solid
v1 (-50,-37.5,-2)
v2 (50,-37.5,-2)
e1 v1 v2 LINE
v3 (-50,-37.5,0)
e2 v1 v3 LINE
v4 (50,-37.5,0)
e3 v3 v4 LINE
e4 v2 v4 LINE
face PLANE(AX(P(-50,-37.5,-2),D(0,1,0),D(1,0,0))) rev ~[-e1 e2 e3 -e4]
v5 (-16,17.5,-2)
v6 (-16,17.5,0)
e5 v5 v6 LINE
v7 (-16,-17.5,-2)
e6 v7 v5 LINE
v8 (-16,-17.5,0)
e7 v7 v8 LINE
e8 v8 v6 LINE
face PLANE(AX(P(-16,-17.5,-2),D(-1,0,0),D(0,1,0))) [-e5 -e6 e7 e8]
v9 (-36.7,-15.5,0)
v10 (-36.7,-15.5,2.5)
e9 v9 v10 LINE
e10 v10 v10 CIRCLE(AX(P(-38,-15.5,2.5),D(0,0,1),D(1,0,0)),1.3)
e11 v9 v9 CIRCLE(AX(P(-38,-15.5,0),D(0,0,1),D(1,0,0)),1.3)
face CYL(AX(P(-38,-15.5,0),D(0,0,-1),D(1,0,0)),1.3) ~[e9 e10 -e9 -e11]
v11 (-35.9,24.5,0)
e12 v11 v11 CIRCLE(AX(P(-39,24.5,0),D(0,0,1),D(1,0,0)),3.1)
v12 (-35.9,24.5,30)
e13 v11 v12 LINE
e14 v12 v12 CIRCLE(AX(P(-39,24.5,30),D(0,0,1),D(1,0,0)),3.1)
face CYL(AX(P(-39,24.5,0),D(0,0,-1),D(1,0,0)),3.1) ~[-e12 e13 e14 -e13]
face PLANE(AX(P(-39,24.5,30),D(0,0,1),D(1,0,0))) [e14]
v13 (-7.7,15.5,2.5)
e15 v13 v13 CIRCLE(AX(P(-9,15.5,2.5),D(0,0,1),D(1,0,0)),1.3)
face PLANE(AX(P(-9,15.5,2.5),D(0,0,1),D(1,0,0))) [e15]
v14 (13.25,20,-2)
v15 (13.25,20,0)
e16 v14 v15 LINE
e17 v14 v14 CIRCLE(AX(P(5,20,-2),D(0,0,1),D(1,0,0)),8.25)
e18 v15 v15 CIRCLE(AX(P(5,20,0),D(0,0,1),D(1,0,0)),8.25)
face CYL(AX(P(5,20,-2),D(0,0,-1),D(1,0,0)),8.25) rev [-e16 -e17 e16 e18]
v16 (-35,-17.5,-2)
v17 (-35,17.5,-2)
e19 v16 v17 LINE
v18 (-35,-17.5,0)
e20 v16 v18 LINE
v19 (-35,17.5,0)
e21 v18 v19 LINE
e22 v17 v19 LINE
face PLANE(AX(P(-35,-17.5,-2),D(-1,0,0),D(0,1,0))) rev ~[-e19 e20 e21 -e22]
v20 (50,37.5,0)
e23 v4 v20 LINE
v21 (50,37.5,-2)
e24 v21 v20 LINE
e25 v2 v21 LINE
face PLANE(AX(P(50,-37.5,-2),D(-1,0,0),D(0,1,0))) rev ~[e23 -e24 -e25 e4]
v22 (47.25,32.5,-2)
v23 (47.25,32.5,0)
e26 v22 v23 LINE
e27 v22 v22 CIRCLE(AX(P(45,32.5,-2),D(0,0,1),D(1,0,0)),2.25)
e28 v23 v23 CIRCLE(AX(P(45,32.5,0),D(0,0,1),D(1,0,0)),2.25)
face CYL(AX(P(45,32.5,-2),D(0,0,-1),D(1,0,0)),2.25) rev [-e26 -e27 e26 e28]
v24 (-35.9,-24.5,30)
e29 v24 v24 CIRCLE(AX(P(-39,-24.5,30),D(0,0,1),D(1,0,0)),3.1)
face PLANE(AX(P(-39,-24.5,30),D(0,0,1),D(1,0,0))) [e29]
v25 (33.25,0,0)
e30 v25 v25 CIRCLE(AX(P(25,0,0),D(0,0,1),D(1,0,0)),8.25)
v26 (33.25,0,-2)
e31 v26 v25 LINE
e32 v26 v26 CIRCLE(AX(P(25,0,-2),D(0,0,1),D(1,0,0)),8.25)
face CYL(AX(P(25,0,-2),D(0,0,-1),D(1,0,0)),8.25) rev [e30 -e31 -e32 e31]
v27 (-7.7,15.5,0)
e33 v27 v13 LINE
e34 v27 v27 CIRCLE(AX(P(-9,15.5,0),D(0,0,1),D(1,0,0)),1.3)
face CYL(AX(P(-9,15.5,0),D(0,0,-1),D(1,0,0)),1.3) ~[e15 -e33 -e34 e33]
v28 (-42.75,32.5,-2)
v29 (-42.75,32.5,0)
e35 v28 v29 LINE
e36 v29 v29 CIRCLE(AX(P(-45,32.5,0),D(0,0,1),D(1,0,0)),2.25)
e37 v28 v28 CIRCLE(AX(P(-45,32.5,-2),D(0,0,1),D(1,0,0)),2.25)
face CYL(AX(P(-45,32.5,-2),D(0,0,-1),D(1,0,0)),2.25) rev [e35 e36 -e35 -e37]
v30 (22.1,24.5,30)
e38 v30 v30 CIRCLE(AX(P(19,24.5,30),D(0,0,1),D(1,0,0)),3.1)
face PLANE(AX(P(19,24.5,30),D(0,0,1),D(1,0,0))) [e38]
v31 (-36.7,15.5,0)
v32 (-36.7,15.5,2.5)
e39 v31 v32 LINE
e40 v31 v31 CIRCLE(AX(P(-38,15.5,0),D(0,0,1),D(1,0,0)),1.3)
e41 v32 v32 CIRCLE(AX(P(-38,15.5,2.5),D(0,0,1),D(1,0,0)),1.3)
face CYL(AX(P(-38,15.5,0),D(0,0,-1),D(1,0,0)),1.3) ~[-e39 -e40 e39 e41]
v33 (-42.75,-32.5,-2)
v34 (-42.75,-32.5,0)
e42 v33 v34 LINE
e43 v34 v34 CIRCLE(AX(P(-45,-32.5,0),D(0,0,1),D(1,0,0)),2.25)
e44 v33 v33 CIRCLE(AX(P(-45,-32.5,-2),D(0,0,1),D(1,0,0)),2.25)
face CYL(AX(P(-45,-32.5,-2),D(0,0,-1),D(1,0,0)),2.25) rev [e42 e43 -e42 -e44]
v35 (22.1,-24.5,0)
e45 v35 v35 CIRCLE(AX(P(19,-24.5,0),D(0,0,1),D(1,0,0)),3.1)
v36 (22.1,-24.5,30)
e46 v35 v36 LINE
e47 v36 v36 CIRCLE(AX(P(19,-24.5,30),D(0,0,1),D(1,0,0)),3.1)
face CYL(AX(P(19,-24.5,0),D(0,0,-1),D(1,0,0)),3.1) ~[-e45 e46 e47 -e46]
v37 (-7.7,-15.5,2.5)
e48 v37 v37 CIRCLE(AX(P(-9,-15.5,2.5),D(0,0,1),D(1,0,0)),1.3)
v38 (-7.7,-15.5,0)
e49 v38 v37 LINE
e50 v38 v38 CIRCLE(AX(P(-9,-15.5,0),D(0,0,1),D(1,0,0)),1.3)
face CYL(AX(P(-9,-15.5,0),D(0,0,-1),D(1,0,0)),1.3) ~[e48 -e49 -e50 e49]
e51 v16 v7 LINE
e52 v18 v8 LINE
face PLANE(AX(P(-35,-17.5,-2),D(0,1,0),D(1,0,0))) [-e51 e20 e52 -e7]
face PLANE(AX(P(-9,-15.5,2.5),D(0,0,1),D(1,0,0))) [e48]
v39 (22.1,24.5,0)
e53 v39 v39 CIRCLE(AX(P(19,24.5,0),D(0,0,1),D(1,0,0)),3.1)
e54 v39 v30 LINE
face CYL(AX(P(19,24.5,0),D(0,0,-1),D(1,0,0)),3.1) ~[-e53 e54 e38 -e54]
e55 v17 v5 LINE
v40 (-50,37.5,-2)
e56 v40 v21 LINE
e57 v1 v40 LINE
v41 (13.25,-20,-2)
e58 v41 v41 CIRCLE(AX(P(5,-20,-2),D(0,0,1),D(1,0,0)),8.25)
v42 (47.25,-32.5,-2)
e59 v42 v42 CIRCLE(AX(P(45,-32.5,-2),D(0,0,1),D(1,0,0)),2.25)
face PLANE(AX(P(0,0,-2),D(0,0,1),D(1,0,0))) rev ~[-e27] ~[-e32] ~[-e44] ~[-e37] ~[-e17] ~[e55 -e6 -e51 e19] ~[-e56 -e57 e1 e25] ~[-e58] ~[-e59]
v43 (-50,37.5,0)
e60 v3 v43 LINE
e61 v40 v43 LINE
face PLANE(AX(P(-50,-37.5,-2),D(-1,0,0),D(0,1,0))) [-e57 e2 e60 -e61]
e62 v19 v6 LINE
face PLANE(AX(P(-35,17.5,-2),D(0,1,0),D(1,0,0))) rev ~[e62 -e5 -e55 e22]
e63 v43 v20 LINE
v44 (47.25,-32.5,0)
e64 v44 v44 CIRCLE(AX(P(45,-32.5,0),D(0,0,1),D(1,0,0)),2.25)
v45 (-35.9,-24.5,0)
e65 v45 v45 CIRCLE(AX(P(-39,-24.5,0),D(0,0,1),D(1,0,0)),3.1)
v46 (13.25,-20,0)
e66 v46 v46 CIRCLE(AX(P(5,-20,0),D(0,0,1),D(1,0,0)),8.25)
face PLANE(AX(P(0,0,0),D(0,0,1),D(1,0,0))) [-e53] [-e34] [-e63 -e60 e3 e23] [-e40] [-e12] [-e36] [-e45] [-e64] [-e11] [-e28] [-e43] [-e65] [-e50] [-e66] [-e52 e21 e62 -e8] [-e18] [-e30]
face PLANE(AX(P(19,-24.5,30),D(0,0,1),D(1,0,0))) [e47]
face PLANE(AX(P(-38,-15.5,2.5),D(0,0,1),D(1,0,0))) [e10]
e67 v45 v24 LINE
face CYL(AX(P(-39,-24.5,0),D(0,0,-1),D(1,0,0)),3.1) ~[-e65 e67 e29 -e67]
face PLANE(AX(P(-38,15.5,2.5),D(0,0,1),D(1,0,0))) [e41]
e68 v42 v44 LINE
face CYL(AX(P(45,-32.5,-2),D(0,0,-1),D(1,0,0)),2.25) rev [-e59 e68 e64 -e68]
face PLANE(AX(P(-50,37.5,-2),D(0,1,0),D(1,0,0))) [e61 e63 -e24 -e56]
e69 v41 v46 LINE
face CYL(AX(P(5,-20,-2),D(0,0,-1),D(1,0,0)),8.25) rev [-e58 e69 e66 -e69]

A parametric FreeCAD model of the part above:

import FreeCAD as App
import Part
import Sketcher

V = App.Vector

doc = App.newDocument("Part")
body = doc.addObject("PartDesign::Body", "Body")

sketch1 = body.newObject("Sketcher::SketchObject", "Sketch")
sketch1.AttachmentSupport = (doc.getObject("XY_Plane"), [""])
sketch1.MapMode = "FlatFace"
sketch1.addGeometry(Part.LineSegment(V(-50, 37.5, 0), V(-50, -37.5, 0)), False)
sketch1.addGeometry(Part.LineSegment(V(-50, -37.5, 0), V(50, -37.5, 0)), False)
sketch1.addGeometry(Part.LineSegment(V(50, -37.5, 0), V(50, 37.5, 0)), False)
sketch1.addGeometry(Part.LineSegment(V(50, 37.5, 0), V(-50, 37.5, 0)), False)
sketch1.addGeometry(Part.Circle(V(-45, -32.5, 0), V(0, 0, 1), 2.2), False)
sketch1.addGeometry(Part.Circle(V(5, -20, 0), V(0, 0, 1), 8.2), False)
sketch1.addGeometry(Part.Circle(V(45, -32.5, 0), V(0, 0, 1), 2.2), False)
sketch1.addGeometry(Part.LineSegment(V(-16, -17.5, 0), V(-35, -17.5, 0)), False)
sketch1.addGeometry(Part.LineSegment(V(-35, -17.5, 0), V(-35, 17.5, 0)), False)
sketch1.addGeometry(Part.LineSegment(V(-35, 17.5, 0), V(-16, 17.5, 0)), False)
sketch1.addGeometry(Part.LineSegment(V(-16, 17.5, 0), V(-16, -17.5, 0)), False)
sketch1.addGeometry(Part.Circle(V(-45, 32.5, 0), V(0, 0, 1), 2.2), False)
sketch1.addGeometry(Part.Circle(V(25, 0, 0), V(0, 0, 1), 8.2), False)
sketch1.addGeometry(Part.Circle(V(5, 20, 0), V(0, 0, 1), 8.2), False)
sketch1.addGeometry(Part.Circle(V(45, 32.5, 0), V(0, 0, 1), 2.2), False)
sketch1.addConstraint(Sketcher.Constraint("Coincident", 0, 2, 1, 1))
sketch1.addConstraint(Sketcher.Constraint("Coincident", 1, 2, 2, 1))
sketch1.addConstraint(Sketcher.Constraint("Coincident", 2, 2, 3, 1))
sketch1.addConstraint(Sketcher.Constraint("Coincident", 3, 2, 0, 1))
sketch1.addConstraint(Sketcher.Constraint("Coincident", 7, 2, 8, 1))
sketch1.addConstraint(Sketcher.Constraint("Coincident", 8, 2, 9, 1))
sketch1.addConstraint(Sketcher.Constraint("Coincident", 9, 2, 10, 1))
sketch1.addConstraint(Sketcher.Constraint("Coincident", 10, 2, 7, 1))
sketch1.addConstraint(Sketcher.Constraint("Vertical", 0))
sketch1.addConstraint(Sketcher.Constraint("Horizontal", 1))
sketch1.addConstraint(Sketcher.Constraint("Vertical", 2))
sketch1.addConstraint(Sketcher.Constraint("Horizontal", 3))
sketch1.addConstraint(Sketcher.Constraint("Horizontal", 7))
sketch1.addConstraint(Sketcher.Constraint("Vertical", 8))
sketch1.addConstraint(Sketcher.Constraint("Horizontal", 9))
sketch1.addConstraint(Sketcher.Constraint("Vertical", 10))
sketch1.addConstraint(Sketcher.Constraint("Equal", 4, 6))
sketch1.addConstraint(Sketcher.Constraint("Equal", 6, 11))
sketch1.addConstraint(Sketcher.Constraint("Equal", 5, 12))
sketch1.addConstraint(Sketcher.Constraint("Equal", 12, 13))
sketch1.addConstraint(Sketcher.Constraint("Equal", 11, 14))
sketch1.addConstraint(Sketcher.Constraint("Symmetric", 6, 3, 11, 3, -1, 1))
sketch1.addConstraint(Sketcher.Constraint("Symmetric", 4, 3, 14, 3, -1, 1))
sketch1.addConstraint(Sketcher.Constraint("Symmetric", 0, 2, 2, 2, -1, 1))
sketch1.addConstraint(Sketcher.Constraint("Symmetric", 4, 3, 6, 3, -2))
sketch1.addConstraint(Sketcher.Constraint("Symmetric", 5, 3, 13, 3, -1))
sketch1.addConstraint(Sketcher.Constraint("PointOnObject", 12, 3, -1))
sketch1.addConstraint(Sketcher.Constraint("Diameter", 4, 4.5))
sketch1.addConstraint(Sketcher.Constraint("Diameter", 5, 16.5))
sketch1.addConstraint(Sketcher.Constraint("DistanceX", 1, 1, 1, 2, 100.0))
sketch1.addConstraint(Sketcher.Constraint("DistanceX", 7, 2, 7, 1, 19.0))
sketch1.addConstraint(Sketcher.Constraint("DistanceY", 0, 2, 0, 1, 75.0))
sketch1.addConstraint(Sketcher.Constraint("DistanceY", 8, 1, 8, 2, 35.0))
sketch1.addConstraint(Sketcher.Constraint("DistanceX", 4, 3, -1, 1, 45.0))
sketch1.addConstraint(Sketcher.Constraint("DistanceX", -1, 1, 5, 3, 5.0))
sketch1.addConstraint(Sketcher.Constraint("DistanceY", 5, 3, -1, 1, 20.0))
sketch1.addConstraint(Sketcher.Constraint("DistanceX", -1, 1, 12, 3, 25.0))
sketch1.addConstraint(Sketcher.Constraint("DistanceX", 7, 2, -1, 1, 35.0))
sketch1.addConstraint(Sketcher.Constraint("DistanceY", 4, 3, 11, 3, 65.0))
sketch1.addConstraint(Sketcher.Constraint("DistanceY", 4, 3, 7, 2, 15.0))
pad1 = body.newObject("PartDesign::Pad", "Pad")
pad1.Profile = sketch1
pad1.Length = 2

sketch2 = body.newObject("Sketcher::SketchObject", "Sketch001")
sketch2.AttachmentSupport = (doc.getObject("XY_Plane"), [""])
sketch2.MapMode = "FlatFace"
sketch2.AttachmentOffset = App.Placement(V(0, 0, 2), App.Rotation())
sketch2.addGeometry(Part.Circle(V(-38, 15.5, 0), V(0, 0, 1), 1.3), False)
sketch2.addGeometry(Part.Circle(V(-9, 15.5, 0), V(0, 0, 1), 1.3), False)
sketch2.addGeometry(Part.Circle(V(-38, -15.5, 0), V(0, 0, 1), 1.3), False)
sketch2.addGeometry(Part.Circle(V(-9, -15.5, 0), V(0, 0, 1), 1.3), False)
sketch2.addConstraint(Sketcher.Constraint("Equal", 0, 1))
sketch2.addConstraint(Sketcher.Constraint("Equal", 1, 2))
sketch2.addConstraint(Sketcher.Constraint("Equal", 2, 3))
sketch2.addConstraint(Sketcher.Constraint("Symmetric", 0, 3, 2, 3, -1))
sketch2.addConstraint(Sketcher.Constraint("Symmetric", 1, 3, 3, 3, -1))
sketch2.addConstraint(Sketcher.Constraint("Horizontal", 0, 3, 1, 3))
sketch2.addConstraint(Sketcher.Constraint("Diameter", 0, 2.6))
sketch2.addConstraint(Sketcher.Constraint("DistanceX", 0, 3, -1, 1, 38.0))
sketch2.addConstraint(Sketcher.Constraint("DistanceX", 1, 3, -1, 1, 9.0))
sketch2.addConstraint(Sketcher.Constraint("DistanceY", 2, 3, 0, 3, 31.0))
pad2 = body.newObject("PartDesign::Pad", "Pad001")
pad2.Profile = sketch2
pad2.Length = 2.5

sketch3 = body.newObject("Sketcher::SketchObject", "Sketch002")
sketch3.AttachmentSupport = (doc.getObject("XY_Plane"), [""])
sketch3.MapMode = "FlatFace"
sketch3.AttachmentOffset = App.Placement(V(0, 0, 2), App.Rotation())
sketch3.addGeometry(Part.Circle(V(19, 24.5, 0), V(0, 0, 1), 3.1), False)
sketch3.addGeometry(Part.Circle(V(-39, 24.5, 0), V(0, 0, 1), 3.1), False)
sketch3.addGeometry(Part.Circle(V(-39, -24.5, 0), V(0, 0, 1), 3.1), False)
sketch3.addGeometry(Part.Circle(V(19, -24.5, 0), V(0, 0, 1), 3.1), False)
sketch3.addConstraint(Sketcher.Constraint("Equal", 0, 1))
sketch3.addConstraint(Sketcher.Constraint("Equal", 1, 2))
sketch3.addConstraint(Sketcher.Constraint("Equal", 2, 3))
sketch3.addConstraint(Sketcher.Constraint("Symmetric", 1, 3, 2, 3, -1))
sketch3.addConstraint(Sketcher.Constraint("Symmetric", 0, 3, 3, 3, -1))
sketch3.addConstraint(Sketcher.Constraint("Horizontal", 0, 3, 1, 3))
sketch3.addConstraint(Sketcher.Constraint("Diameter", 0, 6.2))
sketch3.addConstraint(Sketcher.Constraint("DistanceX", -1, 1, 0, 3, 19.0))
sketch3.addConstraint(Sketcher.Constraint("DistanceX", 1, 3, -1, 1, 39.0))
sketch3.addConstraint(Sketcher.Constraint("DistanceY", 2, 3, 1, 3, 49.0))
pad3 = body.newObject("PartDesign::Pad", "Pad002")
pad3.Profile = sketch3
pad3.Length = 30
body2 = doc.addObject("PartDesign::Body", "Body001")
doc.recompute()

body.Placement = App.Placement(V(0, 0, -2), App.Rotation(V(0, 0, 1), 0))
boolean = body2.newObject("PartDesign::Boolean", "Boolean")
boolean.Type = "Fuse"
boolean.addObjects([body])

doc.recompute()
